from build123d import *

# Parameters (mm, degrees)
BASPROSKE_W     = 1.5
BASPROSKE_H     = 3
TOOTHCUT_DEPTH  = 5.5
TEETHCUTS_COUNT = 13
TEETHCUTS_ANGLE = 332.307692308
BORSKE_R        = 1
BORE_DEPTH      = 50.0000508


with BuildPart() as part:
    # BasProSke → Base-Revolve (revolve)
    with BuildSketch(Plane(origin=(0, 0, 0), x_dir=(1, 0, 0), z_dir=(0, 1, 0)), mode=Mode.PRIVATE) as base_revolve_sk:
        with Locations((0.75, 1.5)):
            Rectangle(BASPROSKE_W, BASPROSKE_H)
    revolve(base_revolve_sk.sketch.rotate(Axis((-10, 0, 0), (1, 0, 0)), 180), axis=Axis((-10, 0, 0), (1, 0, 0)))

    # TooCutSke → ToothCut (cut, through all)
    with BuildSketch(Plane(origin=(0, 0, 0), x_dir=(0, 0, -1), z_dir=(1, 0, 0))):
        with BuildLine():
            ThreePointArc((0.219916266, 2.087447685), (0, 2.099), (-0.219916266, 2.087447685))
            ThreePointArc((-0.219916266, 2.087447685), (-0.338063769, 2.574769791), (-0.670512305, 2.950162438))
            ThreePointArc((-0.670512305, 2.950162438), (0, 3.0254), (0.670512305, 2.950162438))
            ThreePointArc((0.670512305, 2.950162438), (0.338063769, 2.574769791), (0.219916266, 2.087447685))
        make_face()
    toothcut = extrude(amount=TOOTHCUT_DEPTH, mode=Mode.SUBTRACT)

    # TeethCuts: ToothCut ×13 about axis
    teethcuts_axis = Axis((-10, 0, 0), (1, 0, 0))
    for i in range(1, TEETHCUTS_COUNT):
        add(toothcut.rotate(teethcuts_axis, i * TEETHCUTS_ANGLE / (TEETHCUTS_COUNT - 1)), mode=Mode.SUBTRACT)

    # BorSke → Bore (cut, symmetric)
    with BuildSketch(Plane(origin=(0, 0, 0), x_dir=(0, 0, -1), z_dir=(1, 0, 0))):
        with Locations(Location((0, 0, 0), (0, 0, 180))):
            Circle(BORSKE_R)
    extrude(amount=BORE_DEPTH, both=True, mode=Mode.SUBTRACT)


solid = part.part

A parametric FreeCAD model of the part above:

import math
import FreeCAD as App
import Part
import Sketcher
Q = App.Units.Quantity


def add_polygon(sketch, points):
    """Adds a closed chain of lines whose ends are joined by coincident constraints."""
    first, n = sketch.GeometryCount, len(points)
    for a, b in zip(points, points[1:] + points[:1]):
        sketch.addGeometry(Part.LineSegment(App.Vector(*a, 0), App.Vector(*b, 0)), False)
    for i in range(n):
        sketch.addConstraint(Sketcher.Constraint("Coincident", first + i, 2, first + (i + 1) % n, 1))

doc = App.newDocument("Part")
body = doc.addObject("PartDesign::Body", "Body")

sketch1 = doc.addObject("Sketcher::SketchObject", "Sketch")
body.addObject(sketch1)
sketch1.AttachmentSupport = (doc.XZ_Plane, [""])
sketch1.MapMode = "FlatFace"
add_polygon(sketch1, [(0, -3), (0, 0), (1.5, 0), (1.5, -3)])
sketch1.addConstraint(Sketcher.Constraint("Vertical", 0))
sketch1.addConstraint(Sketcher.Constraint("Horizontal", 1))
sketch1.addConstraint(Sketcher.Constraint("Vertical", 2))
sketch1.addConstraint(Sketcher.Constraint("Horizontal", 3))
sketch1.addConstraint(Sketcher.Constraint("Coincident", 0, 2, -1, 1))
sketch1.addConstraint(Sketcher.Constraint("DistanceY", 0, 1, 0, 2, Q("3 mm")))
sketch1.addConstraint(Sketcher.Constraint("DistanceX", 1, 1, 1, 2, Q("1.5 mm")))
revolution = doc.addObject("PartDesign::Revolution", "Revolution")
body.addObject(revolution)
revolution.Profile = sketch1
revolution.ReferenceAxis = (sketch1, ["H_Axis"])
revolution.Angle = 360

sketch2 = doc.addObject("Sketcher::SketchObject", "Sketch001")
body.addObject(sketch2)
sketch2.AttachmentSupport = (doc.YZ_Plane, [""])
sketch2.MapMode = "FlatFace"
sketch2.addGeometry(Part.ArcOfCircle(Part.Circle(App.Vector(0, 0, 0), App.Vector(0, 0, 1), 2.1), math.radians(-6.01), math.radians(6.01)), False)
sketch2.addGeometry(Part.ArcOfCircle(Part.Circle(App.Vector(2.09, -1.26, 0), App.Vector(0, 0, 1), 1.04), math.radians(35), math.radians(90)), False)
sketch2.addGeometry(Part.ArcOfCircle(Part.Circle(App.Vector(0, 0, 0), App.Vector(0, 0, 1), 3.03), math.radians(-13), math.radians(13)), False)
sketch2.addGeometry(Part.ArcOfCircle(Part.Circle(App.Vector(2.09, 1.26, 0), App.Vector(0, 0, 1), 1.04), math.radians(-90), math.radians(-35)), False)
sketch2.addConstraint(Sketcher.Constraint("Coincident", 0, 1, 1, 2))
sketch2.addConstraint(Sketcher.Constraint("Coincident", 1, 1, 2, 1))
sketch2.addConstraint(Sketcher.Constraint("Coincident", 2, 2, 3, 2))
sketch2.addConstraint(Sketcher.Constraint("Coincident", 3, 1, 0, 2))
sketch2.addConstraint(Sketcher.Constraint("Coincident", 0, 3, -1, 1))
sketch2.addConstraint(Sketcher.Constraint("Coincident", 2, 3, -1, 1))
sketch2.addConstraint(Sketcher.Constraint("Equal", 1, 3))
sketch2.addConstraint(Sketcher.Constraint("Symmetric", 1, 3, 3, 3, -1))
sketch2.addConstraint(Sketcher.Constraint("Radius", 1, Q("1.04 mm")))
sketch2.addConstraint(Sketcher.Constraint("Radius", 0, Q("2.099 mm")))
sketch2.addConstraint(Sketcher.Constraint("Radius", 2, Q("3.0254 mm")))
sketch2.addConstraint(Sketcher.Constraint("DistanceY", 1, 3, -1, 1, Q("1.2599 mm")))
sketch2.addConstraint(Sketcher.Constraint("DistanceY", 0, 1, 2, 2, Q("0.890429 mm")))
pocket1 = doc.addObject("PartDesign::Pocket", "Pocket")
body.addObject(pocket1)
pocket1.Profile = sketch2
pocket1.Type = "ThroughAll"
pocket1.Reversed = True
doc.recompute()

polarpattern = doc.addObject("PartDesign::PolarPattern", "PolarPattern")
body.addObject(polarpattern)
polarpattern.Originals = [pocket1]
polarpattern.Axis = (doc.X_Axis, [""])
polarpattern.Angle = 360
polarpattern.Occurrences = 13
body.Tip = polarpattern

sketch3 = doc.addObject("Sketcher::SketchObject", "Sketch002")
body.addObject(sketch3)
sketch3.AttachmentSupport = (doc.YZ_Plane, [""])
sketch3.MapMode = "FlatFace"
sketch3.addGeometry(Part.Circle(App.Vector(0, 0, 0), App.Vector(0, 0, 1), 1), False)
sketch3.addConstraint(Sketcher.Constraint("Coincident", 0, 3, -1, 1))
sketch3.addConstraint(Sketcher.Constraint("Diameter", 0, Q("2 mm")))
pocket2 = doc.addObject("PartDesign::Pocket", "Pocket001")
body.addObject(pocket2)
pocket2.Profile = sketch3
pocket2.Length = 100.000102
pocket2.Midplane = True

doc.recompute()
